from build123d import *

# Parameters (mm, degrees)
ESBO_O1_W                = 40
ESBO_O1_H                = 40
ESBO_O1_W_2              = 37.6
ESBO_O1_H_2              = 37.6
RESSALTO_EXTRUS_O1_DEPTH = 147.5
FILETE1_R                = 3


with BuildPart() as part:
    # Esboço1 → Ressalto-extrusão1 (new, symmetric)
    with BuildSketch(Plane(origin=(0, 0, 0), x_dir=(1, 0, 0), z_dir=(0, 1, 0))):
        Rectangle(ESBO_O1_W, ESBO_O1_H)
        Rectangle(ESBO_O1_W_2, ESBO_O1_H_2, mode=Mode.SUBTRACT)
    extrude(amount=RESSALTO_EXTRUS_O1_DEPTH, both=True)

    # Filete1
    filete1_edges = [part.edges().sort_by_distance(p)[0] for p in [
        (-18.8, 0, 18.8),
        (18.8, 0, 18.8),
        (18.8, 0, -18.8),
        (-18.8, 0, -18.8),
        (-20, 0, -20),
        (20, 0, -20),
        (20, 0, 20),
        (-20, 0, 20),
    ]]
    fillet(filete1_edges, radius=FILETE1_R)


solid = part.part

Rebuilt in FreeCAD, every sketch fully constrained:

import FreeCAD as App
import Part
import Sketcher


def edges_at(feature, points):
    """Names of the edges that pass closest to the given points."""
    edges = feature.Shape.Edges
    near = lambda p: min(range(len(edges)), key=lambda i: edges[i].distToShape(Part.Vertex(*p))[0])
    return sorted({f"Edge{near(p) + 1}" for p in points})

doc = App.newDocument("Part")
body = doc.addObject("PartDesign::Body", "Body")

sketch1 = doc.addObject("Sketcher::SketchObject", "Sketch")
body.addObject(sketch1)
sketch1.AttachmentSupport = (doc.XZ_Plane, [""])
sketch1.MapMode = "FlatFace"
sketch1.addGeometry(Part.LineSegment(App.Vector(-20, -20, 0), App.Vector(-20, 20, 0)), False)
sketch1.addGeometry(Part.LineSegment(App.Vector(-20, 20, 0), App.Vector(20, 20, 0)), False)
sketch1.addGeometry(Part.LineSegment(App.Vector(20, 20, 0), App.Vector(20, -20, 0)), False)
sketch1.addGeometry(Part.LineSegment(App.Vector(20, -20, 0), App.Vector(-20, -20, 0)), False)
sketch1.addGeometry(Part.LineSegment(App.Vector(19, 19, 0), App.Vector(-19, 19, 0)), False)
sketch1.addGeometry(Part.LineSegment(App.Vector(-19, 19, 0), App.Vector(-19, -19, 0)), False)
sketch1.addGeometry(Part.LineSegment(App.Vector(-19, -19, 0), App.Vector(19, -19, 0)), False)
sketch1.addGeometry(Part.LineSegment(App.Vector(19, -19, 0), App.Vector(19, 19, 0)), False)
sketch1.addConstraint(Sketcher.Constraint("Coincident", 0, 2, 1, 1))
sketch1.addConstraint(Sketcher.Constraint("Coincident", 1, 2, 2, 1))
sketch1.addConstraint(Sketcher.Constraint("Coincident", 2, 2, 3, 1))
sketch1.addConstraint(Sketcher.Constraint("Coincident", 3, 2, 0, 1))
sketch1.addConstraint(Sketcher.Constraint("Coincident", 4, 2, 5, 1))
sketch1.addConstraint(Sketcher.Constraint("Coincident", 5, 2, 6, 1))
sketch1.addConstraint(Sketcher.Constraint("Coincident", 6, 2, 7, 1))
sketch1.addConstraint(Sketcher.Constraint("Coincident", 7, 2, 4, 1))
sketch1.addConstraint(Sketcher.Constraint("Vertical", 0))
sketch1.addConstraint(Sketcher.Constraint("Horizontal", 1))
sketch1.addConstraint(Sketcher.Constraint("Vertical", 2))
sketch1.addConstraint(Sketcher.Constraint("Horizontal", 3))
sketch1.addConstraint(Sketcher.Constraint("Horizontal", 4))
sketch1.addConstraint(Sketcher.Constraint("Vertical", 5))
sketch1.addConstraint(Sketcher.Constraint("Horizontal", 6))
sketch1.addConstraint(Sketcher.Constraint("Vertical", 7))
sketch1.addConstraint(Sketcher.Constraint("Symmetric", 0, 2, 2, 2, -1, 1))
sketch1.addConstraint(Sketcher.Constraint("Symmetric", 4, 2, 6, 2, -1, 1))
sketch1.addConstraint(Sketcher.Constraint("Equal", 3, 0))
sketch1.addConstraint(Sketcher.Constraint("Equal", 6, 5))
sketch1.addConstraint(Sketcher.Constraint("DistanceX", 1, 1, 1, 2, 40.0))
sketch1.addConstraint(Sketcher.Constraint("DistanceX", 4, 2, 4, 1, 37.6))
pad1 = doc.addObject("PartDesign::Pad", "Pad")
body.addObject(pad1)
pad1.Profile = sketch1
pad1.Length = 295
pad1.Midplane = True
doc.recompute()

fillet = doc.addObject("PartDesign::Fillet", "Fillet")
body.addObject(fillet)
fillet.Base = (pad1, edges_at(pad1, [
    (-18.8, 0, 18.8),
    (18.8, 0, 18.8),
    (18.8, 0, -18.8),
    (-18.8, 0, -18.8),
    (-20, 0, -20),
    (20, 0, -20),
    (20, 0, 20),
    (-20, 0, 20),
]))
fillet.Radius = 3

doc.recompute()
